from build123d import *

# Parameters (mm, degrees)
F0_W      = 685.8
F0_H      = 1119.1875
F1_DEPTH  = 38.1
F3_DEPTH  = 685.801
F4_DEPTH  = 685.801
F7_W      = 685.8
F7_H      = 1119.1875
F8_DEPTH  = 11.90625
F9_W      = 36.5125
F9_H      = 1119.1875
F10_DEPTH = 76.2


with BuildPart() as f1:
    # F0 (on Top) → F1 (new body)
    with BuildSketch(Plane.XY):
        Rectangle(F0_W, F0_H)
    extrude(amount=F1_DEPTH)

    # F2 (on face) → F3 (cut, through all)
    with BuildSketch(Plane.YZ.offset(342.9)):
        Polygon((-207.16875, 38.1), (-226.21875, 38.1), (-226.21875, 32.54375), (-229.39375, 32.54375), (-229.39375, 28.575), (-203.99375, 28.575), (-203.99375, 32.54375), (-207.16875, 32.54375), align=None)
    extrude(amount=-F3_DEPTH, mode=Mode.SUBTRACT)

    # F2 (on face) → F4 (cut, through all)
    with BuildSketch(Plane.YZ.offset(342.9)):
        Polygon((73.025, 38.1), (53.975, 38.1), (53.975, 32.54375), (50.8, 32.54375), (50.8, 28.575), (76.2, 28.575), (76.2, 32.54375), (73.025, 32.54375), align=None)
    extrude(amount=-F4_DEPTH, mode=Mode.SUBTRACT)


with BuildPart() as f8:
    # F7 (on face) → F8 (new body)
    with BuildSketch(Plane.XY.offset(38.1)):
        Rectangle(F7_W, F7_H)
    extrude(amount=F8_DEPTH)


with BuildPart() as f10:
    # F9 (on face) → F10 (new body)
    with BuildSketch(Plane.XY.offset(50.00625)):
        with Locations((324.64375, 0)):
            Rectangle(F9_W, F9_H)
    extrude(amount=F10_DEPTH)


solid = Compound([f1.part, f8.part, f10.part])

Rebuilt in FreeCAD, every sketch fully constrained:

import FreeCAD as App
import Part
import Sketcher
Q = App.Units.Quantity

doc = App.newDocument("Part")
body = doc.addObject("PartDesign::Body", "Body")

# Sketch on XY plane
sketch1 = doc.addObject("Sketcher::SketchObject", "Sketch")
body.addObject(sketch1)
sketch1.AttachmentSupport = (doc.XY_Plane, [""])
sketch1.MapMode = "FlatFace"
sketch1.addGeometry(Part.LineSegment(App.Vector(-343, 560, 0), App.Vector(-343, -560, 0)), False)
sketch1.addGeometry(Part.LineSegment(App.Vector(-343, -560, 0), App.Vector(343, -560, 0)), False)
sketch1.addGeometry(Part.LineSegment(App.Vector(343, -560, 0), App.Vector(343, 560, 0)), False)
sketch1.addGeometry(Part.LineSegment(App.Vector(343, 560, 0), App.Vector(-343, 560, 0)), False)
sketch1.addConstraint(Sketcher.Constraint("Coincident", 0, 2, 1, 1))
sketch1.addConstraint(Sketcher.Constraint("Coincident", 1, 2, 2, 1))
sketch1.addConstraint(Sketcher.Constraint("Coincident", 2, 2, 3, 1))
sketch1.addConstraint(Sketcher.Constraint("Coincident", 3, 2, 0, 1))
sketch1.addConstraint(Sketcher.Constraint("Vertical", 0))
sketch1.addConstraint(Sketcher.Constraint("Horizontal", 1))
sketch1.addConstraint(Sketcher.Constraint("Vertical", 2))
sketch1.addConstraint(Sketcher.Constraint("Horizontal", 3))
sketch1.addConstraint(Sketcher.Constraint("Symmetric", 0, 2, 2, 2, -1, 1))
sketch1.addConstraint(Sketcher.Constraint("DistanceX", 1, 1, 1, 2, Q("27 in")))
sketch1.addConstraint(Sketcher.Constraint("DistanceY", 0, 2, 0, 1, Q("44.0625 in")))
pad1 = doc.addObject("PartDesign::Pad", "Pad")
body.addObject(pad1)
pad1.Profile = sketch1
pad1.Length = Q("1.5 in")

# Sketch on YZ plane
sketch2 = doc.addObject("Sketcher::SketchObject", "Sketch001")
body.addObject(sketch2)
sketch2.AttachmentSupport = (doc.YZ_Plane, [""])
sketch2.MapMode = "FlatFace"
sketch2.AttachmentOffset = App.Placement(App.Vector(0, 0, 13.5 * 25.4), App.Rotation())
sketch2.addGeometry(Part.LineSegment(App.Vector(-207.2, 38.1, 0), App.Vector(-226.2, 38.1, 0)), False)
sketch2.addGeometry(Part.LineSegment(App.Vector(-226.2, 38.1, 0), App.Vector(-226.2, 32.5, 0)), False)
sketch2.addGeometry(Part.LineSegment(App.Vector(-226.2, 32.5, 0), App.Vector(-229.4, 32.5, 0)), False)
sketch2.addGeometry(Part.LineSegment(App.Vector(-229.4, 32.5, 0), App.Vector(-229.4, 28.6, 0)), False)
sketch2.addGeometry(Part.LineSegment(App.Vector(-229.4, 28.6, 0), App.Vector(-204, 28.6, 0)), False)
sketch2.addGeometry(Part.LineSegment(App.Vector(-204, 28.6, 0), App.Vector(-204, 32.5, 0)), False)
sketch2.addGeometry(Part.LineSegment(App.Vector(-204, 32.5, 0), App.Vector(-207.2, 32.5, 0)), False)
sketch2.addGeometry(Part.LineSegment(App.Vector(-207.2, 32.5, 0), App.Vector(-207.2, 38.1, 0)), False)
sketch2.addConstraint(Sketcher.Constraint("Coincident", 0, 2, 1, 1))
sketch2.addConstraint(Sketcher.Constraint("Coincident", 1, 2, 2, 1))
sketch2.addConstraint(Sketcher.Constraint("Coincident", 2, 2, 3, 1))
sketch2.addConstraint(Sketcher.Constraint("Coincident", 3, 2, 4, 1))
sketch2.addConstraint(Sketcher.Constraint("Coincident", 4, 2, 5, 1))
sketch2.addConstraint(Sketcher.Constraint("Coincident", 5, 2, 6, 1))
sketch2.addConstraint(Sketcher.Constraint("Coincident", 6, 2, 7, 1))
sketch2.addConstraint(Sketcher.Constraint("Coincident", 7, 2, 0, 1))
sketch2.addConstraint(Sketcher.Constraint("Horizontal", 0))
sketch2.addConstraint(Sketcher.Constraint("Vertical", 1))
sketch2.addConstraint(Sketcher.Constraint("Horizontal", 2))
sketch2.addConstraint(Sketcher.Constraint("Vertical", 3))
sketch2.addConstraint(Sketcher.Constraint("Horizontal", 4))
sketch2.addConstraint(Sketcher.Constraint("Vertical", 5))
sketch2.addConstraint(Sketcher.Constraint("Horizontal", 6))
sketch2.addConstraint(Sketcher.Constraint("Vertical", 7))
sketch2.addConstraint(Sketcher.Constraint("Horizontal", 2, 2, 5, 2))
sketch2.addConstraint(Sketcher.Constraint("Equal", 2, 6))
sketch2.addConstraint(Sketcher.Constraint("DistanceX", 4, 1, 4, 2, Q("1 in")))
sketch2.addConstraint(Sketcher.Constraint("DistanceX", 0, 2, 0, 1, Q("0.75 in")))
sketch2.addConstraint(Sketcher.Constraint("DistanceY", -1, 1, 0, 2, Q("1.5 in")))
sketch2.addConstraint(Sketcher.Constraint("DistanceY", 1, 2, 1, 1, Q("0.21875 in")))
sketch2.addConstraint(Sketcher.Constraint("DistanceY", 3, 2, 3, 1, Q("0.15625 in")))
sketch2.addConstraint(Sketcher.Constraint("DistanceX", 0, 2, -1, 1, Q("8.90625 in")))
pocket1 = doc.addObject("PartDesign::Pocket", "Pocket")
body.addObject(pocket1)
pocket1.Profile = sketch2
pocket1.Type = "ThroughAll"

# Sketch on YZ plane
sketch3 = doc.addObject("Sketcher::SketchObject", "Sketch002")
body.addObject(sketch3)
sketch3.AttachmentSupport = (doc.YZ_Plane, [""])
sketch3.MapMode = "FlatFace"
sketch3.AttachmentOffset = App.Placement(App.Vector(0, 0, 13.5 * 25.4), App.Rotation())
sketch3.addGeometry(Part.LineSegment(App.Vector(73, 38.1, 0), App.Vector(54, 38.1, 0)), False)
sketch3.addGeometry(Part.LineSegment(App.Vector(54, 38.1, 0), App.Vector(54, 32.5, 0)), False)
sketch3.addGeometry(Part.LineSegment(App.Vector(54, 32.5, 0), App.Vector(50.8, 32.5, 0)), False)
sketch3.addGeometry(Part.LineSegment(App.Vector(50.8, 32.5, 0), App.Vector(50.8, 28.6, 0)), False)
sketch3.addGeometry(Part.LineSegment(App.Vector(50.8, 28.6, 0), App.Vector(76.2, 28.6, 0)), False)
sketch3.addGeometry(Part.LineSegment(App.Vector(76.2, 28.6, 0), App.Vector(76.2, 32.5, 0)), False)
sketch3.addGeometry(Part.LineSegment(App.Vector(76.2, 32.5, 0), App.Vector(73, 32.5, 0)), False)
sketch3.addGeometry(Part.LineSegment(App.Vector(73, 32.5, 0), App.Vector(73, 38.1, 0)), False)
sketch3.addConstraint(Sketcher.Constraint("Coincident", 0, 2, 1, 1))
sketch3.addConstraint(Sketcher.Constraint("Coincident", 1, 2, 2, 1))
sketch3.addConstraint(Sketcher.Constraint("Coincident", 2, 2, 3, 1))
sketch3.addConstraint(Sketcher.Constraint("Coincident", 3, 2, 4, 1))
sketch3.addConstraint(Sketcher.Constraint("Coincident", 4, 2, 5, 1))
sketch3.addConstraint(Sketcher.Constraint("Coincident", 5, 2, 6, 1))
sketch3.addConstraint(Sketcher.Constraint("Coincident", 6, 2, 7, 1))
sketch3.addConstraint(Sketcher.Constraint("Coincident", 7, 2, 0, 1))
sketch3.addConstraint(Sketcher.Constraint("Horizontal", 0))
sketch3.addConstraint(Sketcher.Constraint("Vertical", 1))
sketch3.addConstraint(Sketcher.Constraint("Horizontal", 2))
sketch3.addConstraint(Sketcher.Constraint("Vertical", 3))
sketch3.addConstraint(Sketcher.Constraint("Horizontal", 4))
sketch3.addConstraint(Sketcher.Constraint("Vertical", 5))
sketch3.addConstraint(Sketcher.Constraint("Horizontal", 6))
sketch3.addConstraint(Sketcher.Constraint("Vertical", 7))
sketch3.addConstraint(Sketcher.Constraint("Horizontal", 2, 2, 5, 2))
sketch3.addConstraint(Sketcher.Constraint("Equal", 2, 6))
sketch3.addConstraint(Sketcher.Constraint("DistanceX", 4, 1, 4, 2, Q("1 in")))
sketch3.addConstraint(Sketcher.Constraint("DistanceX", -1, 1, 2, 2, Q("2 in")))
sketch3.addConstraint(Sketcher.Constraint("DistanceX", 0, 2, 0, 1, Q("0.75 in")))
sketch3.addConstraint(Sketcher.Constraint("DistanceY", -1, 1, 0, 2, Q("1.5 in")))
sketch3.addConstraint(Sketcher.Constraint("DistanceY", 1, 2, 1, 1, Q("0.21875 in")))
sketch3.addConstraint(Sketcher.Constraint("DistanceY", 3, 2, 3, 1, Q("0.15625 in")))
pocket2 = doc.addObject("PartDesign::Pocket", "Pocket001")
body.addObject(pocket2)
pocket2.Profile = sketch3
pocket2.Type = "ThroughAll"
body2 = doc.addObject("PartDesign::Body", "Body001")

# Sketch on XY plane
sketch4 = doc.addObject("Sketcher::SketchObject", "Sketch003")
body2.addObject(sketch4)
sketch4.AttachmentSupport = (doc.getObject("XY_Plane001"), [""])
sketch4.MapMode = "FlatFace"
sketch4.AttachmentOffset = App.Placement(App.Vector(0, 0, 1.5 * 25.4), App.Rotation())
sketch4.addGeometry(Part.LineSegment(App.Vector(-343, 560, 0), App.Vector(-343, -560, 0)), False)
sketch4.addGeometry(Part.LineSegment(App.Vector(-343, -560, 0), App.Vector(343, -560, 0)), False)
sketch4.addGeometry(Part.LineSegment(App.Vector(343, -560, 0), App.Vector(343, 560, 0)), False)
sketch4.addGeometry(Part.LineSegment(App.Vector(343, 560, 0), App.Vector(-343, 560, 0)), False)
sketch4.addConstraint(Sketcher.Constraint("Coincident", 0, 2, 1, 1))
sketch4.addConstraint(Sketcher.Constraint("Coincident", 1, 2, 2, 1))
sketch4.addConstraint(Sketcher.Constraint("Coincident", 2, 2, 3, 1))
sketch4.addConstraint(Sketcher.Constraint("Coincident", 3, 2, 0, 1))
sketch4.addConstraint(Sketcher.Constraint("Vertical", 0))
sketch4.addConstraint(Sketcher.Constraint("Horizontal", 1))
sketch4.addConstraint(Sketcher.Constraint("Vertical", 2))
sketch4.addConstraint(Sketcher.Constraint("Horizontal", 3))
sketch4.addConstraint(Sketcher.Constraint("Symmetric", 0, 2, 2, 2, -1, 1))
sketch4.addConstraint(Sketcher.Constraint("DistanceX", 1, 1, 1, 2, Q("27 in")))
sketch4.addConstraint(Sketcher.Constraint("DistanceY", 0, 2, 0, 1, Q("44.0625 in")))
pad2 = doc.addObject("PartDesign::Pad", "Pad001")
body2.addObject(pad2)
pad2.Profile = sketch4
pad2.Length = Q("0.46875 in")
body3 = doc.addObject("PartDesign::Body", "Body002")

# Sketch on XY plane
sketch5 = doc.addObject("Sketcher::SketchObject", "Sketch004")
body3.addObject(sketch5)
sketch5.AttachmentSupport = (doc.getObject("XY_Plane002"), [""])
sketch5.MapMode = "FlatFace"
sketch5.AttachmentOffset = App.Placement(App.Vector(0, 0, 1.96875 * 25.4), App.Rotation())
sketch5.addGeometry(Part.LineSegment(App.Vector(306, 560, 0), App.Vector(306, -560, 0)), False)
sketch5.addGeometry(Part.LineSegment(App.Vector(306, -560, 0), App.Vector(343, -560, 0)), False)
sketch5.addGeometry(Part.LineSegment(App.Vector(343, -560, 0), App.Vector(343, 560, 0)), False)
sketch5.addGeometry(Part.LineSegment(App.Vector(343, 560, 0), App.Vector(306, 560, 0)), False)
sketch5.addConstraint(Sketcher.Constraint("Coincident", 0, 2, 1, 1))
sketch5.addConstraint(Sketcher.Constraint("Coincident", 1, 2, 2, 1))
sketch5.addConstraint(Sketcher.Constraint("Coincident", 2, 2, 3, 1))
sketch5.addConstraint(Sketcher.Constraint("Coincident", 3, 2, 0, 1))
sketch5.addConstraint(Sketcher.Constraint("Vertical", 0))
sketch5.addConstraint(Sketcher.Constraint("Horizontal", 1))
sketch5.addConstraint(Sketcher.Constraint("Vertical", 2))
sketch5.addConstraint(Sketcher.Constraint("Horizontal", 3))
sketch5.addConstraint(Sketcher.Constraint("DistanceX", -1, 1, 1, 2, Q("13.5 in")))
sketch5.addConstraint(Sketcher.Constraint("DistanceX", 1, 1, 1, 2, Q("1.4375 in")))
sketch5.addConstraint(Sketcher.Constraint("DistanceY", 0, 2, 0, 1, Q("44.0625 in")))
sketch5.addConstraint(Sketcher.Constraint("DistanceY", 0, 2, -1, 1, Q("22.03125 in")))
pad3 = doc.addObject("PartDesign::Pad", "Pad002")
body3.addObject(pad3)
pad3.Profile = sketch5
pad3.Length = Q("3 in")

doc.recompute()
